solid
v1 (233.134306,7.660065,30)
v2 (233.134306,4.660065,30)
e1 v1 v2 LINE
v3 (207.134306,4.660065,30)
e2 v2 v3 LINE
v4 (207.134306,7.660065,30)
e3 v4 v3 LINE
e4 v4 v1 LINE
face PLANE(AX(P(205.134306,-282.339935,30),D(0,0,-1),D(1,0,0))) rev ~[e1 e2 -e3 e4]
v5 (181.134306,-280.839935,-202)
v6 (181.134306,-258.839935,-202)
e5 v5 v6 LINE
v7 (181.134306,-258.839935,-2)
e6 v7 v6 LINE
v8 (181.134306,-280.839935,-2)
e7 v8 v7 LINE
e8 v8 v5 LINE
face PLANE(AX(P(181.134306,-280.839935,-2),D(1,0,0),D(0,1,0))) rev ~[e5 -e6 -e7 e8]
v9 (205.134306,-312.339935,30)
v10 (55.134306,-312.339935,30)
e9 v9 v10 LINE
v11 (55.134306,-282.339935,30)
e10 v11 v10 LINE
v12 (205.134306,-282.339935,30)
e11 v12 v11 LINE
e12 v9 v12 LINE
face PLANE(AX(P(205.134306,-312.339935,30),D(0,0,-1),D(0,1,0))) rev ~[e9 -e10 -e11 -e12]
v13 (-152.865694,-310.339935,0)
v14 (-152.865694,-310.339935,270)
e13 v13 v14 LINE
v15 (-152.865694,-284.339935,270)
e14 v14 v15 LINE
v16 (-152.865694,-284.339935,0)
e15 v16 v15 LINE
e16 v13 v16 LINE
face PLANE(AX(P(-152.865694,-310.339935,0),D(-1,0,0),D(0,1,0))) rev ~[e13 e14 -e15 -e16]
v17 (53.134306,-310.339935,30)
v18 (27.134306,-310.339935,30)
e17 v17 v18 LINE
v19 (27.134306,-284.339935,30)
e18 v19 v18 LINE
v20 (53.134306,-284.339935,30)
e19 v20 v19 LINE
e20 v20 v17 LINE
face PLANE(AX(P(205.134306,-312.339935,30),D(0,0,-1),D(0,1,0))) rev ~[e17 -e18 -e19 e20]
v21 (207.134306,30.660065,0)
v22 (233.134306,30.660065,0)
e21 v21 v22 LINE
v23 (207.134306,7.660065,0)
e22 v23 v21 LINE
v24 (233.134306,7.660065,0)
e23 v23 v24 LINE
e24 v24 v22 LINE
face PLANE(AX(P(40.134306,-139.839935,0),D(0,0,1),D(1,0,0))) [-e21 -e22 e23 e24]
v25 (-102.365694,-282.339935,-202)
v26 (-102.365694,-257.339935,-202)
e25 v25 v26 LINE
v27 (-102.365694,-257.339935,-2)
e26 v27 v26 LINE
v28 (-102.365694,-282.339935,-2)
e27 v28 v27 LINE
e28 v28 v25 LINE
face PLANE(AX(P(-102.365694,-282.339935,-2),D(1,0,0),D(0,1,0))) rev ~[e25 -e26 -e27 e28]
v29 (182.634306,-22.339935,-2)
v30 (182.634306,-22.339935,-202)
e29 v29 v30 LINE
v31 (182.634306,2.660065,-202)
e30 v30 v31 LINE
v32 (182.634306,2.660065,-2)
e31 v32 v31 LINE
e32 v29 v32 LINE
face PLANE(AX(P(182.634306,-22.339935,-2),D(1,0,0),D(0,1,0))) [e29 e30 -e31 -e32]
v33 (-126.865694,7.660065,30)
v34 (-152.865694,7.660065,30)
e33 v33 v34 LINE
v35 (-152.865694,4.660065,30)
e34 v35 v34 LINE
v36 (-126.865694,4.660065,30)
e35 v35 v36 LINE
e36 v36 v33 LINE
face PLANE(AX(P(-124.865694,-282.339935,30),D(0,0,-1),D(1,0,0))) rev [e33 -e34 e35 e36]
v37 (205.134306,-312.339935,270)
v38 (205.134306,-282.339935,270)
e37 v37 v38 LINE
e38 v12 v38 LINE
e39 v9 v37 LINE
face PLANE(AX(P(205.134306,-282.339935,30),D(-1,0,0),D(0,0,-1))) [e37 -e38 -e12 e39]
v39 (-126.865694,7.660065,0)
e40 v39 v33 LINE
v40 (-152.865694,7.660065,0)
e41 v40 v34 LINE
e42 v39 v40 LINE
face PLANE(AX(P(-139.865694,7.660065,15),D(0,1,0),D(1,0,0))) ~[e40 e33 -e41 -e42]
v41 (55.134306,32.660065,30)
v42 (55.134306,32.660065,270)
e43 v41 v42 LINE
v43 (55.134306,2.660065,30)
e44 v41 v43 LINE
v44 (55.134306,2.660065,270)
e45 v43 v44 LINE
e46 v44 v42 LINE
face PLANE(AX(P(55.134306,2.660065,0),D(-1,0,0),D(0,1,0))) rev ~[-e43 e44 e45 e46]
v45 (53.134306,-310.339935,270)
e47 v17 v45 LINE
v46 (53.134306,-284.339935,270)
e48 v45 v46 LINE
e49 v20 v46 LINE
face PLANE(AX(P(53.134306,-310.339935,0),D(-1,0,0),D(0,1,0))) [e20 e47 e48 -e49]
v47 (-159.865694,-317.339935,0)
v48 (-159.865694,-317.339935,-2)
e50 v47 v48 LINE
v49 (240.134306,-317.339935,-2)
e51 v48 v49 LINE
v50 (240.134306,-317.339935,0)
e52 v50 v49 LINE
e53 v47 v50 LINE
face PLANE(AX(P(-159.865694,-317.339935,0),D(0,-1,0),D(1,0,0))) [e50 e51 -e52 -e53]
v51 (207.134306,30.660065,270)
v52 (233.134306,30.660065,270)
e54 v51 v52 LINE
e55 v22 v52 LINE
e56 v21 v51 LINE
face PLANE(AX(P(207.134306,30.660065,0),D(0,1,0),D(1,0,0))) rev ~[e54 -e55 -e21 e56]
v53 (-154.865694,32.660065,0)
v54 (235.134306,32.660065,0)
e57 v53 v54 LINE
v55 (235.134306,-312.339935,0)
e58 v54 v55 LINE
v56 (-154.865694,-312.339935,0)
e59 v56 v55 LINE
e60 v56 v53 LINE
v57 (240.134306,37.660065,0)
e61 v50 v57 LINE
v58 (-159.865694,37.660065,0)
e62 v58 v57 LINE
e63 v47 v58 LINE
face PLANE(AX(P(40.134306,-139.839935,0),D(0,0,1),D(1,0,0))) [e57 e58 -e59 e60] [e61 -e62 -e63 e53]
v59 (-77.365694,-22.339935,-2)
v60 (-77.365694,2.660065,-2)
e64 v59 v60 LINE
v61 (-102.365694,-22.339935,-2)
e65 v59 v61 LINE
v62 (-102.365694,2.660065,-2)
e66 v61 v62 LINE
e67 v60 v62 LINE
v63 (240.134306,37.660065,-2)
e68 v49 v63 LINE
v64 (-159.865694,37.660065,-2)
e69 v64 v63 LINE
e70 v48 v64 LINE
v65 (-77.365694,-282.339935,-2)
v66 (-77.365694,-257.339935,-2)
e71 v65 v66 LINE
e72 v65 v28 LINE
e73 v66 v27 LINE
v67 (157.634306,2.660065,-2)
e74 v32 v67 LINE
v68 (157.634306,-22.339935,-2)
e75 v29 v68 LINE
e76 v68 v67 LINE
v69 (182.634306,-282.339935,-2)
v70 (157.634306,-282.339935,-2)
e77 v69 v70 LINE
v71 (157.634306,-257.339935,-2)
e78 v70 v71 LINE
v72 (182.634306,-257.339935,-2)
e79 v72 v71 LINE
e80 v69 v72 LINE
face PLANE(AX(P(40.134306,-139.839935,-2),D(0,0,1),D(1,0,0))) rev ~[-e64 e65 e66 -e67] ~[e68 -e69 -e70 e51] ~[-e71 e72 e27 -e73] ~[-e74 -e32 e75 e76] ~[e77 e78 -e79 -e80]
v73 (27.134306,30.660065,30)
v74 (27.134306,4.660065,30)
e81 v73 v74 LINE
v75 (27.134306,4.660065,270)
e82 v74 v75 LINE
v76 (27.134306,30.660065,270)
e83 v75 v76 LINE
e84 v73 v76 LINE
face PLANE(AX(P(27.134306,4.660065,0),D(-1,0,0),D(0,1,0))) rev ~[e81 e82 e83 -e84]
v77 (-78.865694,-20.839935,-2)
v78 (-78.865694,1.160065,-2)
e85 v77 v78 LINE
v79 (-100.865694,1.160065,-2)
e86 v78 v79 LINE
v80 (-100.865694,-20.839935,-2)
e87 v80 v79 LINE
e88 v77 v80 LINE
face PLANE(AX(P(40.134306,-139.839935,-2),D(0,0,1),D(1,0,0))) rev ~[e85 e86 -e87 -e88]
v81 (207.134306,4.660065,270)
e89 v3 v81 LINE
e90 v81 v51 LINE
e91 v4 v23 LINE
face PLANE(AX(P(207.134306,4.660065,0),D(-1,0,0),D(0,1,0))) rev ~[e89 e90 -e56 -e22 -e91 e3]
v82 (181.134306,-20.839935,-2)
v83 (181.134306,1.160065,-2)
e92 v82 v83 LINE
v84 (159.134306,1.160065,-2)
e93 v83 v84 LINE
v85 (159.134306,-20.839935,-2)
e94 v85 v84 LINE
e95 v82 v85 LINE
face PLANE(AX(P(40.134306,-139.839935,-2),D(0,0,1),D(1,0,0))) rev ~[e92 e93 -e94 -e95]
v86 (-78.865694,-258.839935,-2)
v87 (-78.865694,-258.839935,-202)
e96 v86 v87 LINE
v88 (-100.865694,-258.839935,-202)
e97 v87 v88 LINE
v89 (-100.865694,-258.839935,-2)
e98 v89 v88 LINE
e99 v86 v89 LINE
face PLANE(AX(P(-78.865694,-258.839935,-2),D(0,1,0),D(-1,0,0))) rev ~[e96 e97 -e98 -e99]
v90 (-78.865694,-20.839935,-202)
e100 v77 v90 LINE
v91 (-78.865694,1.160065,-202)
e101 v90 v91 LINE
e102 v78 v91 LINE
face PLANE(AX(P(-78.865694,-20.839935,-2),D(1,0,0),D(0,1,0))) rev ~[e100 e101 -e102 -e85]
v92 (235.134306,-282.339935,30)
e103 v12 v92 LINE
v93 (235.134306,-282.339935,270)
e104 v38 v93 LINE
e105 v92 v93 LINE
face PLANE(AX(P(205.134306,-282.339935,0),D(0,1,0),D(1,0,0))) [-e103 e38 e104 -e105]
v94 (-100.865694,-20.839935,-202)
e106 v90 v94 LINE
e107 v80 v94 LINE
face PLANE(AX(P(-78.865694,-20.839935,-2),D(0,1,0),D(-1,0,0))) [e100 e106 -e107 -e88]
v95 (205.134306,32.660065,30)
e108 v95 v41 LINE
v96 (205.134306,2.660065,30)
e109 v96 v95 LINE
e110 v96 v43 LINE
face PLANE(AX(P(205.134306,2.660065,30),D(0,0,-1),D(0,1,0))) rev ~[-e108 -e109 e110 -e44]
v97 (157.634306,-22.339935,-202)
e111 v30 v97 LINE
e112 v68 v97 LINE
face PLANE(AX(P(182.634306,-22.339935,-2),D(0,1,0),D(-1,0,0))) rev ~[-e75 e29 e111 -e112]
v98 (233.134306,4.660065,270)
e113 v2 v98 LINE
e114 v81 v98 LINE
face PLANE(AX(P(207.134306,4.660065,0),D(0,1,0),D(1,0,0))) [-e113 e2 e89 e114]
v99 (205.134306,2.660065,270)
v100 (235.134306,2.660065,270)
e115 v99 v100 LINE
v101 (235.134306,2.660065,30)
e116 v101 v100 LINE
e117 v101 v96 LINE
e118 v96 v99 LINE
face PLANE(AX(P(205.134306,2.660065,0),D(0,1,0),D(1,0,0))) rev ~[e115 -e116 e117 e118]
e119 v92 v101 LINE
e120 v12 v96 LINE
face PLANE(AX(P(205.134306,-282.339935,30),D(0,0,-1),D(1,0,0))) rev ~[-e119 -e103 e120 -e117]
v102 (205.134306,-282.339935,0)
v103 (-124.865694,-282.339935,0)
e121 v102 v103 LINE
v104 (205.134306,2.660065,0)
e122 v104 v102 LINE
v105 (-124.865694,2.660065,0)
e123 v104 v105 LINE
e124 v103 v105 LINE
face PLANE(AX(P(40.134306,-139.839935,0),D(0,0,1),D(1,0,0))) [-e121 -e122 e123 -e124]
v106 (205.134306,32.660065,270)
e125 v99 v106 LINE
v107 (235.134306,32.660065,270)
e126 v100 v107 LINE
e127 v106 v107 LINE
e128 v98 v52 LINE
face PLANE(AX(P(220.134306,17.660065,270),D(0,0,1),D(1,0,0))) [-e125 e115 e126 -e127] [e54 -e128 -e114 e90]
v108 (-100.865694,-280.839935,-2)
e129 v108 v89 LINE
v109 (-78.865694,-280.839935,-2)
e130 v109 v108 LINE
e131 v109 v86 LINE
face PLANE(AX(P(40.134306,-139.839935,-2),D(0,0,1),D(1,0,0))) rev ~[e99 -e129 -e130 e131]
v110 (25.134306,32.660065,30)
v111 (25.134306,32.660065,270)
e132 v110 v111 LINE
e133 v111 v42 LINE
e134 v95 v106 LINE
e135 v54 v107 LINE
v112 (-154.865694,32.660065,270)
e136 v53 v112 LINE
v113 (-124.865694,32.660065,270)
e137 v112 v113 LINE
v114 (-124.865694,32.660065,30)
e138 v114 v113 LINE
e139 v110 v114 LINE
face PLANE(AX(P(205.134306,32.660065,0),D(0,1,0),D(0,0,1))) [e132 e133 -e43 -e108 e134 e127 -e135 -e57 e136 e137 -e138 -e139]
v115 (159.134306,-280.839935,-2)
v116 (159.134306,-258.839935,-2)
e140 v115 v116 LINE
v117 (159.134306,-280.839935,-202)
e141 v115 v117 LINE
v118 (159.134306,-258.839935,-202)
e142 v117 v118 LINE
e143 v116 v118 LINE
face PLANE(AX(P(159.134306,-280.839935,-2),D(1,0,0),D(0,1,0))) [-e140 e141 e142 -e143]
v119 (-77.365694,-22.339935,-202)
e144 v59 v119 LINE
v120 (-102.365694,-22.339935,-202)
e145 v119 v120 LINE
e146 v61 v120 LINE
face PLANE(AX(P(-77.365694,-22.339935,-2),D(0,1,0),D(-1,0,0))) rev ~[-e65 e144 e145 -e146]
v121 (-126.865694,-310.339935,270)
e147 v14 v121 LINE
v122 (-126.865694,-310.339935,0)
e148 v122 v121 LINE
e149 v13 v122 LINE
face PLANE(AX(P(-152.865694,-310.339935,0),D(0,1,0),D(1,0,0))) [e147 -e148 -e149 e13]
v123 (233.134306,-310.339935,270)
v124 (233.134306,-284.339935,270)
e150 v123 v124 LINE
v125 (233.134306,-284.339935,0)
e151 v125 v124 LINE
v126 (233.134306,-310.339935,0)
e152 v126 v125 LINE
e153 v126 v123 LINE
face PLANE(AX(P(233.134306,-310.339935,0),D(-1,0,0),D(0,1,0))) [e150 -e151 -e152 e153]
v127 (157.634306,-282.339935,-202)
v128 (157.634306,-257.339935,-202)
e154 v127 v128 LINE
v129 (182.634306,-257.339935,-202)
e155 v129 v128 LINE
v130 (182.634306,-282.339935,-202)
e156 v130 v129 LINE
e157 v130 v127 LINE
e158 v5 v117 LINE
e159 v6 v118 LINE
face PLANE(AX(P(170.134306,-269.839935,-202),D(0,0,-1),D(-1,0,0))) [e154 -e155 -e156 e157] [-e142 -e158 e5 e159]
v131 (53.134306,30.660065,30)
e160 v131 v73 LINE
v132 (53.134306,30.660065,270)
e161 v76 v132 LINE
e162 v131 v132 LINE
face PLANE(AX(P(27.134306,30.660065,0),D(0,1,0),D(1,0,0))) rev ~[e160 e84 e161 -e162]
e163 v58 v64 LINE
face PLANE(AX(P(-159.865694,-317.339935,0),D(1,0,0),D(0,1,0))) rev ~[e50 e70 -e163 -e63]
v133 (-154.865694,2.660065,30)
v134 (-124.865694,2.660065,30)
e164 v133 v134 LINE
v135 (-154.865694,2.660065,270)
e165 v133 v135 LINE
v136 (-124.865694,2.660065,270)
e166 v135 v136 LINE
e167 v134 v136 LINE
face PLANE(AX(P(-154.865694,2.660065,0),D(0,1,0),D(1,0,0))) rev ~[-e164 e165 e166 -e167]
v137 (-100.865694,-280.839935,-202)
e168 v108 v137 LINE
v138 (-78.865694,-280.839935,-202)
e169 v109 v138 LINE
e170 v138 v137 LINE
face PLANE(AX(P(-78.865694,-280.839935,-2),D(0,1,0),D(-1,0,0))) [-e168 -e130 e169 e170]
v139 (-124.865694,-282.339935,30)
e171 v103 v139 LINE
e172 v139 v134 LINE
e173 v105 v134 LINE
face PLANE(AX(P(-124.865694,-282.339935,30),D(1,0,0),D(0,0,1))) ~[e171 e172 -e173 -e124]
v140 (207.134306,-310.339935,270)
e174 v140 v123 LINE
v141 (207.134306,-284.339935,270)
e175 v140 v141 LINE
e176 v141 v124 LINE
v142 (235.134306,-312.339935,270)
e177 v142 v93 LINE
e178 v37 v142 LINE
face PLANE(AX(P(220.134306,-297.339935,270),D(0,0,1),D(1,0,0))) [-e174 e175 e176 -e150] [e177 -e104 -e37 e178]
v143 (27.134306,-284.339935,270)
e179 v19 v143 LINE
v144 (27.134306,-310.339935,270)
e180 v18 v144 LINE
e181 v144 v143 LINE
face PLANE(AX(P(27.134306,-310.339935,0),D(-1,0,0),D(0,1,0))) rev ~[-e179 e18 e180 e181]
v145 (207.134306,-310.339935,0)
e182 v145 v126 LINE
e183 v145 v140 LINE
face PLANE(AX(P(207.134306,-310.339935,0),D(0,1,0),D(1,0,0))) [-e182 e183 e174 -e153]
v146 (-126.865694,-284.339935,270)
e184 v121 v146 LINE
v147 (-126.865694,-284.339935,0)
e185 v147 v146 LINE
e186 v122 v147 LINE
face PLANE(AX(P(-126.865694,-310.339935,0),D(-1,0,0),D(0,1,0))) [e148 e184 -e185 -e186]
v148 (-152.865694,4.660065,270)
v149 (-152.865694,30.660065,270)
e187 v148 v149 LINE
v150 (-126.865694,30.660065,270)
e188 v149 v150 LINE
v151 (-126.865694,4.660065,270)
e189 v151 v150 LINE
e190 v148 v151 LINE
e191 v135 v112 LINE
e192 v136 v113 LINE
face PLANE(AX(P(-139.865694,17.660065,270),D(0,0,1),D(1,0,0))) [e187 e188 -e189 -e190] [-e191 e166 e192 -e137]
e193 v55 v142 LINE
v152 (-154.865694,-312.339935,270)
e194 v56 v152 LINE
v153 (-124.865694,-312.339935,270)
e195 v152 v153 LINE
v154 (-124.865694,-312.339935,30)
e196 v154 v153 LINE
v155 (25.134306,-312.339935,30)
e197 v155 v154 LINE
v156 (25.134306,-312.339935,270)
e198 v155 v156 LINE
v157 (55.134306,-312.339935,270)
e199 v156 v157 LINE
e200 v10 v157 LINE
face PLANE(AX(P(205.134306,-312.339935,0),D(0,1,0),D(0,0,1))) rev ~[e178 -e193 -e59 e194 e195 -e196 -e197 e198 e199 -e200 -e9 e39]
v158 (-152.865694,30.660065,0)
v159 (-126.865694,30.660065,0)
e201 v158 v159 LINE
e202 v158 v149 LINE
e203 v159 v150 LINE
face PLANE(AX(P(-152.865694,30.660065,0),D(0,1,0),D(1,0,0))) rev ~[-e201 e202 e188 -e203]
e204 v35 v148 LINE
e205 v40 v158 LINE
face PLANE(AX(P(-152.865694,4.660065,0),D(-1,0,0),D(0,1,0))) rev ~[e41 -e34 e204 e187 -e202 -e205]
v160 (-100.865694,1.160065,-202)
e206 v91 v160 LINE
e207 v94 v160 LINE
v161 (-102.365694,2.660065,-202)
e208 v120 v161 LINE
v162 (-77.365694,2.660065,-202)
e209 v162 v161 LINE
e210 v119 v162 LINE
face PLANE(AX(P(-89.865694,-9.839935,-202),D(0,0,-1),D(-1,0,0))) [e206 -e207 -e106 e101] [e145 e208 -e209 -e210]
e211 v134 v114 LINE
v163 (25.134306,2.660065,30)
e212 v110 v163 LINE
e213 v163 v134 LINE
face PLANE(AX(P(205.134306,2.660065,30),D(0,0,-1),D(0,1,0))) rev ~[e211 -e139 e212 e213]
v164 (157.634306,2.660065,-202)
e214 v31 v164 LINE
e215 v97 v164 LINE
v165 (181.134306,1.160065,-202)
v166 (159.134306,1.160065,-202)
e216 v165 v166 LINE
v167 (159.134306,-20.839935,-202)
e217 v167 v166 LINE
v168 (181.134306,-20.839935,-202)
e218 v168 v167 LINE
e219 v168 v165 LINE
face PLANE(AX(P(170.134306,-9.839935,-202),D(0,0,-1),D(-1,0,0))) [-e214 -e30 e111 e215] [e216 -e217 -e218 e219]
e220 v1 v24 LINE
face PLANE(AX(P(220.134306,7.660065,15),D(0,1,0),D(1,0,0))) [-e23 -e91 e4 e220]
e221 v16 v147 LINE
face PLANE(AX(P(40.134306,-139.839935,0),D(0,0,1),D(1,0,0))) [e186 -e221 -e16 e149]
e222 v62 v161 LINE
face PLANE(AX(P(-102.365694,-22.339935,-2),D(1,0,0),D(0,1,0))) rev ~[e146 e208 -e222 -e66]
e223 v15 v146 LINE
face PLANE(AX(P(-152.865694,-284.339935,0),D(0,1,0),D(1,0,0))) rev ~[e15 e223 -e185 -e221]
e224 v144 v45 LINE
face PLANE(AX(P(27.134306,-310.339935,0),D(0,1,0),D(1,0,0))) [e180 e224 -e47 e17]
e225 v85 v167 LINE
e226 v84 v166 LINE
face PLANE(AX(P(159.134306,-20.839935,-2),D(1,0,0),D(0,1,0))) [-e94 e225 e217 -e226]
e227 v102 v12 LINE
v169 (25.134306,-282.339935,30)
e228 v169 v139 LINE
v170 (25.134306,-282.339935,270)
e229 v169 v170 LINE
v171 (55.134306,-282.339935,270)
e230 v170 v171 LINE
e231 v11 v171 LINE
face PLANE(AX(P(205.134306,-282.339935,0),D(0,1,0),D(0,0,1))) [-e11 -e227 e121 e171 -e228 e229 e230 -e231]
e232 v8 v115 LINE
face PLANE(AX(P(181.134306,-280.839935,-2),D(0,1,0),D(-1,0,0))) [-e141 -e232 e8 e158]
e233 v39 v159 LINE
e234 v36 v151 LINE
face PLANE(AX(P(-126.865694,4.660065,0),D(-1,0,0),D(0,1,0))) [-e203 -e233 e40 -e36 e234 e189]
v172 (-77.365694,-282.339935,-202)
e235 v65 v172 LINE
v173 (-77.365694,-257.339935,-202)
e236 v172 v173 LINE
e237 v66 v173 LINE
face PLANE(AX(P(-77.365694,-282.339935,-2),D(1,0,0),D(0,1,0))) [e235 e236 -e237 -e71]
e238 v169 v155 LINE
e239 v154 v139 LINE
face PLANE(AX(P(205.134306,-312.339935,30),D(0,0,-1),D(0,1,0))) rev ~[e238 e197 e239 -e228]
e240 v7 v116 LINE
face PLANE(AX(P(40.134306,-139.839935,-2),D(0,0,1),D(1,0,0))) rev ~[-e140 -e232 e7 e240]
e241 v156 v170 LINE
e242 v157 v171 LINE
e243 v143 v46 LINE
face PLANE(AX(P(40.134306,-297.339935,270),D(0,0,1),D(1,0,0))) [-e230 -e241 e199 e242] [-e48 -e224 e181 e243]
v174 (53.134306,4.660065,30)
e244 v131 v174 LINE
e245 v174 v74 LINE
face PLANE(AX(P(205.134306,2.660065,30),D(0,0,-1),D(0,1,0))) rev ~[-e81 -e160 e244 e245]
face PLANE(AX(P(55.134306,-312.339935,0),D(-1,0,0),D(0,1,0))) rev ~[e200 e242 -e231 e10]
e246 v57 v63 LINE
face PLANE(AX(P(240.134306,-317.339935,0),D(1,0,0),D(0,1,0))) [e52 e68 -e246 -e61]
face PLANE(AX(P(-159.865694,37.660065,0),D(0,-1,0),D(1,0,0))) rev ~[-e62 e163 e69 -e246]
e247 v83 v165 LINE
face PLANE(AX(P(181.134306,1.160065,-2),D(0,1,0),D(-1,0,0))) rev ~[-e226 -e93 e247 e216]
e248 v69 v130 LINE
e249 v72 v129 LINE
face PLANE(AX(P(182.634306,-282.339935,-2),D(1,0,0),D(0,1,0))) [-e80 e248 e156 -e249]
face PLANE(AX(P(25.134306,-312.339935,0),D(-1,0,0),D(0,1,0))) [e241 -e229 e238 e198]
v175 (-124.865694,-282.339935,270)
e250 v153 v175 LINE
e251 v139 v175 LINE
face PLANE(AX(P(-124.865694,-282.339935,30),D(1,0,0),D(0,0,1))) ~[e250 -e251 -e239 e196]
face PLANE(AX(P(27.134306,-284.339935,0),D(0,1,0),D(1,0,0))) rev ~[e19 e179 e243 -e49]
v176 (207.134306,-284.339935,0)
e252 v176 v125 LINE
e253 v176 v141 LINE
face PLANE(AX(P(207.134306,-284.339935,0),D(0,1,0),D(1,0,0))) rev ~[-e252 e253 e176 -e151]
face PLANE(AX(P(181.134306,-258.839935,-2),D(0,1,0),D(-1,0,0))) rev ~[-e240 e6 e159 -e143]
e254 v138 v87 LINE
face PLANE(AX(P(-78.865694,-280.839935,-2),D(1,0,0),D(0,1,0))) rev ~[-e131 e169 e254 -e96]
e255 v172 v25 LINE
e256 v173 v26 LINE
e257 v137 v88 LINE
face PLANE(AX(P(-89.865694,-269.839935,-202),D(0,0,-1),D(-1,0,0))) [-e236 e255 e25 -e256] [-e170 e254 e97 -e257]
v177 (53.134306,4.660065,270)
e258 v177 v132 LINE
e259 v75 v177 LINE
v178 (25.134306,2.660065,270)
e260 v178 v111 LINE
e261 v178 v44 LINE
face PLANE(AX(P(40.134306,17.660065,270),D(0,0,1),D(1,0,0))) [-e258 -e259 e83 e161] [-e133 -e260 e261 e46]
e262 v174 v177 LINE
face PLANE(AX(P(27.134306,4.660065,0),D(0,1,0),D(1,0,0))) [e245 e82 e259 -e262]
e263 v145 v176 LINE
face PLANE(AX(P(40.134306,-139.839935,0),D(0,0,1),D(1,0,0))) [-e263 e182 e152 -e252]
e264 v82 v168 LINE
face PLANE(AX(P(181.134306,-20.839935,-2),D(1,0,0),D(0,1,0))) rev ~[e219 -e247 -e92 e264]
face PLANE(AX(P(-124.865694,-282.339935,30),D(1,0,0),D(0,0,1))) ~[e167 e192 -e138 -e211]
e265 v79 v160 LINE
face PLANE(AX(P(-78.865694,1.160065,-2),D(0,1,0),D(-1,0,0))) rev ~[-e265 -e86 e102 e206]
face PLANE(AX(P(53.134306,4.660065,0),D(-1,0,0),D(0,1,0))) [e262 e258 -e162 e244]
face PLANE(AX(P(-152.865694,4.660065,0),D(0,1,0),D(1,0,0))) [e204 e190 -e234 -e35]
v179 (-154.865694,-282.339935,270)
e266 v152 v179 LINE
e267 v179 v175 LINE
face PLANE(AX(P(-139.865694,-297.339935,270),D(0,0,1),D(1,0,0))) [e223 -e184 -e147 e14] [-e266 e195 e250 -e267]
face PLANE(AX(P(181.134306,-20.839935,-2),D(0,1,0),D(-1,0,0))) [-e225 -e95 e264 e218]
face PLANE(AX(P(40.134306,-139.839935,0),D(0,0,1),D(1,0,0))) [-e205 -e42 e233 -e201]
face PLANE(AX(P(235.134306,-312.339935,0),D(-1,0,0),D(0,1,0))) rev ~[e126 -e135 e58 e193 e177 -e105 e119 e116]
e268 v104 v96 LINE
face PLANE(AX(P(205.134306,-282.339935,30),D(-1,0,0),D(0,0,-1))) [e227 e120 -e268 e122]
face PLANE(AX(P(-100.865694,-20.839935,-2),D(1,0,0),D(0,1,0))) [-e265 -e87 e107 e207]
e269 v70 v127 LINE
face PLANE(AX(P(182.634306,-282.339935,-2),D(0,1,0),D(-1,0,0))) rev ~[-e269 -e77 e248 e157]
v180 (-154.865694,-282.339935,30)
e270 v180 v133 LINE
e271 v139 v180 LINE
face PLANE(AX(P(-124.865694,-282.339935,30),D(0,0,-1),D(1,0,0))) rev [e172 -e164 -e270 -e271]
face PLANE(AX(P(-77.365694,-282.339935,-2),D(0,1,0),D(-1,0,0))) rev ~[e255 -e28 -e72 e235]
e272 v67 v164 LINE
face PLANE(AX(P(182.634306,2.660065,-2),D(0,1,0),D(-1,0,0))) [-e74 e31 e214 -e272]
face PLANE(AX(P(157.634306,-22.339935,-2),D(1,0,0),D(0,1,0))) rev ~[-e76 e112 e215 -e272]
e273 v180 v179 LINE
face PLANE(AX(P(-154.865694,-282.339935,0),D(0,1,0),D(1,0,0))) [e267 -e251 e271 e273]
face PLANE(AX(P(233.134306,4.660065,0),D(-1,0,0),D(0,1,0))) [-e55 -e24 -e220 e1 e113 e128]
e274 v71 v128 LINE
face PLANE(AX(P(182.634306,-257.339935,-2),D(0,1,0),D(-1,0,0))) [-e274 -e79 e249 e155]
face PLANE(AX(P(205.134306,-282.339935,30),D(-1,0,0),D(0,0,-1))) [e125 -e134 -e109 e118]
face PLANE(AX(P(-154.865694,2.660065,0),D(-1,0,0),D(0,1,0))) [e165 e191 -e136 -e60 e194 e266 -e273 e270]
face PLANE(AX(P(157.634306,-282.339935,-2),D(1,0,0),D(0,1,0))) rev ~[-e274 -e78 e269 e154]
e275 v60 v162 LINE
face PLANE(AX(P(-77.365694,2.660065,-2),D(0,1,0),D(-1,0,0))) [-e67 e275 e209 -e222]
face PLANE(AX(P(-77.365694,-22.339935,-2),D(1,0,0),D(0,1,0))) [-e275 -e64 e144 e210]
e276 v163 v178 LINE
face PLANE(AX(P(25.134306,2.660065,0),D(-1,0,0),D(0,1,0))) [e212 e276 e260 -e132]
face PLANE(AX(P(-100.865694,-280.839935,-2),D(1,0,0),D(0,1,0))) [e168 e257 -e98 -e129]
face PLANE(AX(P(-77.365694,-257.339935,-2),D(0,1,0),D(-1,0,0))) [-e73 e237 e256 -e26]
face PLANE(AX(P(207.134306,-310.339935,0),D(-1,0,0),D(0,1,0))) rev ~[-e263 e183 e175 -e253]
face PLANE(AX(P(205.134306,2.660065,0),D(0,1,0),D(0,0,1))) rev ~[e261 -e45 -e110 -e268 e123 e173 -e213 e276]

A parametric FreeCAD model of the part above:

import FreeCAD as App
import Part
import Sketcher
from FreeCAD import Vector
Q = App.Units.Quantity

doc = App.newDocument("Part")
body = doc.addObject("PartDesign::Body", "Body")

# Sketch on XY plane
sketch1 = doc.addObject("Sketcher::SketchObject", "Sketch")
body.addObject(sketch1)
sketch1.AttachmentSupport = (doc.XY_Plane, [""])
sketch1.MapMode = "FlatFace"
sketch1.addGeometry([
    Part.LineSegment(Vector(-155, 33, 0), Vector(-155, 3, 0)),  # 0
    Part.LineSegment(Vector(-155, 3, 0), Vector(-125, 3, 0)),  # 1
    Part.LineSegment(Vector(-125, 3, 0), Vector(-125, 33, 0)),  # 2
    Part.LineSegment(Vector(-125, 33, 0), Vector(-155, 33, 0)),  # 3
    Part.LineSegment(Vector(-127, 5, 0), Vector(-153, 5, 0)),  # 4
    Part.LineSegment(Vector(-153, 5, 0), Vector(-153, 31, 0)),  # 5
    Part.LineSegment(Vector(-153, 31, 0), Vector(-127, 31, 0)),  # 6
    Part.LineSegment(Vector(-127, 31, 0), Vector(-127, 5, 0)),  # 7
], False)
sketch1.addConstraint([
    Sketcher.Constraint("Coincident", 0, 2, 1, 1),
    Sketcher.Constraint("Coincident", 1, 2, 2, 1),
    Sketcher.Constraint("Coincident", 2, 2, 3, 1),
    Sketcher.Constraint("Coincident", 3, 2, 0, 1),
    Sketcher.Constraint("Coincident", 4, 2, 5, 1),
    Sketcher.Constraint("Coincident", 5, 2, 6, 1),
    Sketcher.Constraint("Coincident", 6, 2, 7, 1),
    Sketcher.Constraint("Coincident", 7, 2, 4, 1),
    Sketcher.Constraint("Vertical", 0),
    Sketcher.Constraint("Horizontal", 1),
    Sketcher.Constraint("Vertical", 2),
    Sketcher.Constraint("Horizontal", 3),
    Sketcher.Constraint("Horizontal", 4),
    Sketcher.Constraint("Vertical", 5),
    Sketcher.Constraint("Horizontal", 6),
    Sketcher.Constraint("Vertical", 7),
    Sketcher.Constraint("Equal", 3, 0),
    Sketcher.Constraint("Equal", 6, 5),
    Sketcher.Constraint("DistanceX", 1, 1, 1, 2, Q("30 mm")),
    Sketcher.Constraint("DistanceX", 4, 2, 4, 1, Q("26 mm")),
    Sketcher.Constraint("DistanceX", 0, 2, 4, 2, Q("2 mm")),
    Sketcher.Constraint("DistanceY", 0, 2, 4, 2, Q("2 mm")),
    Sketcher.Constraint("DistanceX", 0, 2, -1, 1, Q("154.865694 mm")),
    Sketcher.Constraint("DistanceY", -1, 1, 0, 2, Q("2.660065 mm")),
])
pad1 = doc.addObject("PartDesign::Pad", "Pad")
body.addObject(pad1)
pad1.Profile = sketch1
pad1.Length = 270
body2 = doc.addObject("PartDesign::Body", "Body001")

# Sketch on XY plane
sketch2 = doc.addObject("Sketcher::SketchObject", "Sketch001")
body2.addObject(sketch2)
sketch2.AttachmentSupport = (doc.getObject("XY_Plane001"), [""])
sketch2.MapMode = "FlatFace"
sketch2.addGeometry([
    Part.LineSegment(Vector(25, 33, 0), Vector(25, 3, 0)),  # 0
    Part.LineSegment(Vector(25, 3, 0), Vector(55, 3, 0)),  # 1
    Part.LineSegment(Vector(55, 3, 0), Vector(55, 33, 0)),  # 2
    Part.LineSegment(Vector(55, 33, 0), Vector(25, 33, 0)),  # 3
    Part.LineSegment(Vector(53, 5, 0), Vector(27, 5, 0)),  # 4
    Part.LineSegment(Vector(27, 5, 0), Vector(27, 31, 0)),  # 5
    Part.LineSegment(Vector(27, 31, 0), Vector(53, 31, 0)),  # 6
    Part.LineSegment(Vector(53, 31, 0), Vector(53, 5, 0)),  # 7
], False)
sketch2.addConstraint([
    Sketcher.Constraint("Coincident", 0, 2, 1, 1),
    Sketcher.Constraint("Coincident", 1, 2, 2, 1),
    Sketcher.Constraint("Coincident", 2, 2, 3, 1),
    Sketcher.Constraint("Coincident", 3, 2, 0, 1),
    Sketcher.Constraint("Coincident", 4, 2, 5, 1),
    Sketcher.Constraint("Coincident", 5, 2, 6, 1),
    Sketcher.Constraint("Coincident", 6, 2, 7, 1),
    Sketcher.Constraint("Coincident", 7, 2, 4, 1),
    Sketcher.Constraint("Vertical", 0),
    Sketcher.Constraint("Horizontal", 1),
    Sketcher.Constraint("Vertical", 2),
    Sketcher.Constraint("Horizontal", 3),
    Sketcher.Constraint("Horizontal", 4),
    Sketcher.Constraint("Vertical", 5),
    Sketcher.Constraint("Horizontal", 6),
    Sketcher.Constraint("Vertical", 7),
    Sketcher.Constraint("Equal", 3, 0),
    Sketcher.Constraint("Equal", 6, 5),
    Sketcher.Constraint("DistanceX", 1, 1, 1, 2, Q("30 mm")),
    Sketcher.Constraint("DistanceX", 4, 2, 4, 1, Q("26 mm")),
    Sketcher.Constraint("DistanceX", 0, 2, 4, 2, Q("2 mm")),
    Sketcher.Constraint("DistanceY", 0, 2, 4, 2, Q("2 mm")),
    Sketcher.Constraint("DistanceX", -1, 1, 0, 2, Q("25.134306 mm")),
    Sketcher.Constraint("DistanceY", -1, 1, 0, 2, Q("2.660065 mm")),
])
pad2 = doc.addObject("PartDesign::Pad", "Pad001")
body2.addObject(pad2)
pad2.Profile = sketch2
pad2.Length = 270
body3 = doc.addObject("PartDesign::Body", "Body002")

# Sketch on XY plane
sketch3 = doc.addObject("Sketcher::SketchObject", "Sketch002")
body3.addObject(sketch3)
sketch3.AttachmentSupport = (doc.getObject("XY_Plane002"), [""])
sketch3.MapMode = "FlatFace"
sketch3.addGeometry([
    Part.LineSegment(Vector(205, 33, 0), Vector(205, 3, 0)),  # 0
    Part.LineSegment(Vector(205, 3, 0), Vector(235, 3, 0)),  # 1
    Part.LineSegment(Vector(235, 3, 0), Vector(235, 33, 0)),  # 2
    Part.LineSegment(Vector(235, 33, 0), Vector(205, 33, 0)),  # 3
    Part.LineSegment(Vector(233, 5, 0), Vector(207, 5, 0)),  # 4
    Part.LineSegment(Vector(207, 5, 0), Vector(207, 31, 0)),  # 5
    Part.LineSegment(Vector(207, 31, 0), Vector(233, 31, 0)),  # 6
    Part.LineSegment(Vector(233, 31, 0), Vector(233, 5, 0)),  # 7
], False)
sketch3.addConstraint([
    Sketcher.Constraint("Coincident", 0, 2, 1, 1),
    Sketcher.Constraint("Coincident", 1, 2, 2, 1),
    Sketcher.Constraint("Coincident", 2, 2, 3, 1),
    Sketcher.Constraint("Coincident", 3, 2, 0, 1),
    Sketcher.Constraint("Coincident", 4, 2, 5, 1),
    Sketcher.Constraint("Coincident", 5, 2, 6, 1),
    Sketcher.Constraint("Coincident", 6, 2, 7, 1),
    Sketcher.Constraint("Coincident", 7, 2, 4, 1),
    Sketcher.Constraint("Vertical", 0),
    Sketcher.Constraint("Horizontal", 1),
    Sketcher.Constraint("Vertical", 2),
    Sketcher.Constraint("Horizontal", 3),
    Sketcher.Constraint("Horizontal", 4),
    Sketcher.Constraint("Vertical", 5),
    Sketcher.Constraint("Horizontal", 6),
    Sketcher.Constraint("Vertical", 7),
    Sketcher.Constraint("Equal", 3, 0),
    Sketcher.Constraint("Equal", 6, 5),
    Sketcher.Constraint("DistanceX", 1, 1, 1, 2, Q("30 mm")),
    Sketcher.Constraint("DistanceX", 4, 2, 4, 1, Q("26 mm")),
    Sketcher.Constraint("DistanceX", 0, 2, 4, 2, Q("2 mm")),
    Sketcher.Constraint("DistanceY", 0, 2, 4, 2, Q("2 mm")),
    Sketcher.Constraint("DistanceX", -1, 1, 0, 2, Q("205.134306 mm")),
    Sketcher.Constraint("DistanceY", -1, 1, 0, 2, Q("2.660065 mm")),
])
pad3 = doc.addObject("PartDesign::Pad", "Pad002")
body3.addObject(pad3)
pad3.Profile = sketch3
pad3.Length = 270
body4 = doc.addObject("PartDesign::Body", "Body003")

# Sketch on XY plane
sketch4 = doc.addObject("Sketcher::SketchObject", "Sketch003")
body4.addObject(sketch4)
sketch4.AttachmentSupport = (doc.getObject("XY_Plane003"), [""])
sketch4.MapMode = "FlatFace"
sketch4.addGeometry([
    Part.LineSegment(Vector(-155, -282, 0), Vector(-155, -312, 0)),  # 0
    Part.LineSegment(Vector(-155, -312, 0), Vector(-125, -312, 0)),  # 1
    Part.LineSegment(Vector(-125, -312, 0), Vector(-125, -282, 0)),  # 2
    Part.LineSegment(Vector(-125, -282, 0), Vector(-155, -282, 0)),  # 3
    Part.LineSegment(Vector(-127, -310, 0), Vector(-153, -310, 0)),  # 4
    Part.LineSegment(Vector(-153, -310, 0), Vector(-153, -284, 0)),  # 5
    Part.LineSegment(Vector(-153, -284, 0), Vector(-127, -284, 0)),  # 6
    Part.LineSegment(Vector(-127, -284, 0), Vector(-127, -310, 0)),  # 7
], False)
sketch4.addConstraint([
    Sketcher.Constraint("Coincident", 0, 2, 1, 1),
    Sketcher.Constraint("Coincident", 1, 2, 2, 1),
    Sketcher.Constraint("Coincident", 2, 2, 3, 1),
    Sketcher.Constraint("Coincident", 3, 2, 0, 1),
    Sketcher.Constraint("Coincident", 4, 2, 5, 1),
    Sketcher.Constraint("Coincident", 5, 2, 6, 1),
    Sketcher.Constraint("Coincident", 6, 2, 7, 1),
    Sketcher.Constraint("Coincident", 7, 2, 4, 1),
    Sketcher.Constraint("Vertical", 0),
    Sketcher.Constraint("Horizontal", 1),
    Sketcher.Constraint("Vertical", 2),
    Sketcher.Constraint("Horizontal", 3),
    Sketcher.Constraint("Horizontal", 4),
    Sketcher.Constraint("Vertical", 5),
    Sketcher.Constraint("Horizontal", 6),
    Sketcher.Constraint("Vertical", 7),
    Sketcher.Constraint("Equal", 3, 0),
    Sketcher.Constraint("Equal", 6, 5),
    Sketcher.Constraint("DistanceX", 1, 1, 1, 2, Q("30 mm")),
    Sketcher.Constraint("DistanceX", 4, 2, 4, 1, Q("26 mm")),
    Sketcher.Constraint("DistanceX", 0, 2, 4, 2, Q("2 mm")),
    Sketcher.Constraint("DistanceY", 0, 2, 4, 2, Q("2 mm")),
    Sketcher.Constraint("DistanceX", 0, 2, -1, 1, Q("154.865694 mm")),
    Sketcher.Constraint("DistanceY", 0, 2, -1, 1, Q("312.339935 mm")),
])
pad4 = doc.addObject("PartDesign::Pad", "Pad003")
body4.addObject(pad4)
pad4.Profile = sketch4
pad4.Length = 270
body5 = doc.addObject("PartDesign::Body", "Body004")

# Sketch on XY plane
sketch5 = doc.addObject("Sketcher::SketchObject", "Sketch004")
body5.addObject(sketch5)
sketch5.AttachmentSupport = (doc.getObject("XY_Plane004"), [""])
sketch5.MapMode = "FlatFace"
sketch5.addGeometry([
    Part.LineSegment(Vector(25, -282, 0), Vector(25, -312, 0)),  # 0
    Part.LineSegment(Vector(25, -312, 0), Vector(55, -312, 0)),  # 1
    Part.LineSegment(Vector(55, -312, 0), Vector(55, -282, 0)),  # 2
    Part.LineSegment(Vector(55, -282, 0), Vector(25, -282, 0)),  # 3
    Part.LineSegment(Vector(53, -310, 0), Vector(27, -310, 0)),  # 4
    Part.LineSegment(Vector(27, -310, 0), Vector(27, -284, 0)),  # 5
    Part.LineSegment(Vector(27, -284, 0), Vector(53, -284, 0)),  # 6
    Part.LineSegment(Vector(53, -284, 0), Vector(53, -310, 0)),  # 7
], False)
sketch5.addConstraint([
    Sketcher.Constraint("Coincident", 0, 2, 1, 1),
    Sketcher.Constraint("Coincident", 1, 2, 2, 1),
    Sketcher.Constraint("Coincident", 2, 2, 3, 1),
    Sketcher.Constraint("Coincident", 3, 2, 0, 1),
    Sketcher.Constraint("Coincident", 4, 2, 5, 1),
    Sketcher.Constraint("Coincident", 5, 2, 6, 1),
    Sketcher.Constraint("Coincident", 6, 2, 7, 1),
    Sketcher.Constraint("Coincident", 7, 2, 4, 1),
    Sketcher.Constraint("Vertical", 0),
    Sketcher.Constraint("Horizontal", 1),
    Sketcher.Constraint("Vertical", 2),
    Sketcher.Constraint("Horizontal", 3),
    Sketcher.Constraint("Horizontal", 4),
    Sketcher.Constraint("Vertical", 5),
    Sketcher.Constraint("Horizontal", 6),
    Sketcher.Constraint("Vertical", 7),
    Sketcher.Constraint("Equal", 3, 0),
    Sketcher.Constraint("Equal", 6, 5),
    Sketcher.Constraint("DistanceX", 1, 1, 1, 2, Q("30 mm")),
    Sketcher.Constraint("DistanceX", 4, 2, 4, 1, Q("26 mm")),
    Sketcher.Constraint("DistanceX", 0, 2, 4, 2, Q("2 mm")),
    Sketcher.Constraint("DistanceY", 0, 2, 4, 2, Q("2 mm")),
    Sketcher.Constraint("DistanceX", -1, 1, 0, 2, Q("25.134306 mm")),
    Sketcher.Constraint("DistanceY", 0, 2, -1, 1, Q("312.339935 mm")),
])
pad5 = doc.addObject("PartDesign::Pad", "Pad004")
body5.addObject(pad5)
pad5.Profile = sketch5
pad5.Length = 270
body6 = doc.addObject("PartDesign::Body", "Body005")

# Sketch on XY plane
sketch6 = doc.addObject("Sketcher::SketchObject", "Sketch005")
body6.addObject(sketch6)
sketch6.AttachmentSupport = (doc.getObject("XY_Plane005"), [""])
sketch6.MapMode = "FlatFace"
sketch6.addGeometry([
    Part.LineSegment(Vector(205, -282, 0), Vector(205, -312, 0)),  # 0
    Part.LineSegment(Vector(205, -312, 0), Vector(235, -312, 0)),  # 1
    Part.LineSegment(Vector(235, -312, 0), Vector(235, -282, 0)),  # 2
    Part.LineSegment(Vector(235, -282, 0), Vector(205, -282, 0)),  # 3
    Part.LineSegment(Vector(233, -310, 0), Vector(207, -310, 0)),  # 4
    Part.LineSegment(Vector(207, -310, 0), Vector(207, -284, 0)),  # 5
    Part.LineSegment(Vector(207, -284, 0), Vector(233, -284, 0)),  # 6
    Part.LineSegment(Vector(233, -284, 0), Vector(233, -310, 0)),  # 7
], False)
sketch6.addConstraint([
    Sketcher.Constraint("Coincident", 0, 2, 1, 1),
    Sketcher.Constraint("Coincident", 1, 2, 2, 1),
    Sketcher.Constraint("Coincident", 2, 2, 3, 1),
    Sketcher.Constraint("Coincident", 3, 2, 0, 1),
    Sketcher.Constraint("Coincident", 4, 2, 5, 1),
    Sketcher.Constraint("Coincident", 5, 2, 6, 1),
    Sketcher.Constraint("Coincident", 6, 2, 7, 1),
    Sketcher.Constraint("Coincident", 7, 2, 4, 1),
    Sketcher.Constraint("Vertical", 0),
    Sketcher.Constraint("Horizontal", 1),
    Sketcher.Constraint("Vertical", 2),
    Sketcher.Constraint("Horizontal", 3),
    Sketcher.Constraint("Horizontal", 4),
    Sketcher.Constraint("Vertical", 5),
    Sketcher.Constraint("Horizontal", 6),
    Sketcher.Constraint("Vertical", 7),
    Sketcher.Constraint("Equal", 3, 0),
    Sketcher.Constraint("Equal", 6, 5),
    Sketcher.Constraint("DistanceX", 1, 1, 1, 2, Q("30 mm")),
    Sketcher.Constraint("DistanceX", 4, 2, 4, 1, Q("26 mm")),
    Sketcher.Constraint("DistanceX", 0, 2, 4, 2, Q("2 mm")),
    Sketcher.Constraint("DistanceY", 0, 2, 4, 2, Q("2 mm")),
    Sketcher.Constraint("DistanceX", -1, 1, 0, 2, Q("205.134306 mm")),
    Sketcher.Constraint("DistanceY", 0, 2, -1, 1, Q("312.339935 mm")),
])
pad6 = doc.addObject("PartDesign::Pad", "Pad005")
body6.addObject(pad6)
pad6.Profile = sketch6
pad6.Length = 270
body.AllowCompound = True
doc.recompute()

boolean = doc.addObject("PartDesign::Boolean", "Boolean")
body.addObject(boolean)
boolean.Type = "Fuse"
boolean.addObjects([body2])
doc.recompute()

boolean2 = doc.addObject("PartDesign::Boolean", "Boolean001")
body.addObject(boolean2)
boolean2.Type = "Fuse"
boolean2.addObjects([body3])
doc.recompute()

boolean3 = doc.addObject("PartDesign::Boolean", "Boolean002")
body.addObject(boolean3)
boolean3.Type = "Fuse"
boolean3.addObjects([body4])
doc.recompute()

boolean4 = doc.addObject("PartDesign::Boolean", "Boolean003")
body.addObject(boolean4)
boolean4.Type = "Fuse"
boolean4.addObjects([body5])
doc.recompute()

boolean5 = doc.addObject("PartDesign::Boolean", "Boolean004")
body.addObject(boolean5)
boolean5.Type = "Fuse"
boolean5.addObjects([body6])

# Sketch on XY plane
sketch7 = doc.addObject("Sketcher::SketchObject", "Sketch006")
body.addObject(sketch7)
sketch7.AttachmentSupport = (doc.XY_Plane, [""])
sketch7.MapMode = "FlatFace"
sketch7.addGeometry([
    Part.LineSegment(Vector(-160, 38, 0), Vector(-160, -317, 0)),
    Part.LineSegment(Vector(-160, -317, 0), Vector(240, -317, 0)),
    Part.LineSegment(Vector(240, -317, 0), Vector(240, 38, 0)),
    Part.LineSegment(Vector(240, 38, 0), Vector(-160, 38, 0)),
], False)
sketch7.addConstraint([
    Sketcher.Constraint("Coincident", 0, 2, 1, 1),
    Sketcher.Constraint("Coincident", 1, 2, 2, 1),
    Sketcher.Constraint("Coincident", 2, 2, 3, 1),
    Sketcher.Constraint("Coincident", 3, 2, 0, 1),
    Sketcher.Constraint("Vertical", 0),
    Sketcher.Constraint("Horizontal", 1),
    Sketcher.Constraint("Vertical", 2),
    Sketcher.Constraint("Horizontal", 3),
    Sketcher.Constraint("DistanceX", 1, 1, 1, 2, Q("400 mm")),
    Sketcher.Constraint("DistanceY", 0, 2, 0, 1, Q("355 mm")),
    Sketcher.Constraint("DistanceX", 0, 2, -1, 1, Q("159.865694 mm")),
    Sketcher.Constraint("DistanceY", 0, 2, -1, 1, Q("317.339935 mm")),
])
pad7 = doc.addObject("PartDesign::Pad", "Pad006")
body.addObject(pad7)
pad7.Profile = sketch7
pad7.Length = 2
pad7.Reversed = True

# Sketch on XY plane
sketch8 = doc.addObject("Sketcher::SketchObject", "Sketch007")
body.addObject(sketch8)
sketch8.AttachmentSupport = (doc.XY_Plane, [""])
sketch8.MapMode = "FlatFace"
sketch8.AttachmentOffset = App.Placement(Vector(0, 0, -2), App.Rotation())
sketch8.addGeometry([
    Part.LineSegment(Vector(183, 3, 0), Vector(183, -22, 0)),  # 0
    Part.LineSegment(Vector(183, -22, 0), Vector(158, -22, 0)),  # 1
    Part.LineSegment(Vector(158, -22, 0), Vector(158, 3, 0)),  # 2
    Part.LineSegment(Vector(158, 3, 0), Vector(183, 3, 0)),  # 3
    Part.LineSegment(Vector(159, -21, 0), Vector(181, -21, 0)),  # 4
    Part.LineSegment(Vector(181, -21, 0), Vector(181, 1, 0)),  # 5
    Part.LineSegment(Vector(181, 1, 0), Vector(159, 1, 0)),  # 6
    Part.LineSegment(Vector(159, 1, 0), Vector(159, -21, 0)),  # 7
    Part.LineSegment(Vector(183, -257, 0), Vector(183, -282, 0)),  # 8
    Part.LineSegment(Vector(183, -282, 0), Vector(158, -282, 0)),  # 9
    Part.LineSegment(Vector(158, -282, 0), Vector(158, -257, 0)),  # 10
    Part.LineSegment(Vector(158, -257, 0), Vector(183, -257, 0)),  # 11
    Part.LineSegment(Vector(159, -281, 0), Vector(181, -281, 0)),  # 12
    Part.LineSegment(Vector(181, -281, 0), Vector(181, -259, 0)),  # 13
    Part.LineSegment(Vector(181, -259, 0), Vector(159, -259, 0)),  # 14
    Part.LineSegment(Vector(159, -259, 0), Vector(159, -281, 0)),  # 15
    Part.LineSegment(Vector(-77, -257, 0), Vector(-77, -282, 0)),  # 16
    Part.LineSegment(Vector(-77, -282, 0), Vector(-102, -282, 0)),  # 17
    Part.LineSegment(Vector(-102, -282, 0), Vector(-102, -257, 0)),  # 18
    Part.LineSegment(Vector(-102, -257, 0), Vector(-77, -257, 0)),  # 19
    Part.LineSegment(Vector(-101, -281, 0), Vector(-79, -281, 0)),  # 20
    Part.LineSegment(Vector(-79, -281, 0), Vector(-79, -259, 0)),  # 21
    Part.LineSegment(Vector(-79, -259, 0), Vector(-101, -259, 0)),  # 22
    Part.LineSegment(Vector(-101, -259, 0), Vector(-101, -281, 0)),  # 23
    Part.LineSegment(Vector(-77, 3, 0), Vector(-77, -22, 0)),  # 24
    Part.LineSegment(Vector(-77, -22, 0), Vector(-102, -22, 0)),  # 25
    Part.LineSegment(Vector(-102, -22, 0), Vector(-102, 3, 0)),  # 26
    Part.LineSegment(Vector(-102, 3, 0), Vector(-77, 3, 0)),  # 27
    Part.LineSegment(Vector(-101, -21, 0), Vector(-79, -21, 0)),  # 28
    Part.LineSegment(Vector(-79, -21, 0), Vector(-79, 1, 0)),  # 29
    Part.LineSegment(Vector(-79, 1, 0), Vector(-101, 1, 0)),  # 30
    Part.LineSegment(Vector(-101, 1, 0), Vector(-101, -21, 0)),  # 31
], False)
sketch8.addConstraint([
    Sketcher.Constraint("Coincident", 0, 2, 1, 1),
    Sketcher.Constraint("Coincident", 1, 2, 2, 1),
    Sketcher.Constraint("Coincident", 2, 2, 3, 1),
    Sketcher.Constraint("Coincident", 3, 2, 0, 1),
    Sketcher.Constraint("Coincident", 4, 2, 5, 1),
    Sketcher.Constraint("Coincident", 5, 2, 6, 1),
    Sketcher.Constraint("Coincident", 6, 2, 7, 1),
    Sketcher.Constraint("Coincident", 7, 2, 4, 1),
    Sketcher.Constraint("Coincident", 8, 2, 9, 1),
    Sketcher.Constraint("Coincident", 9, 2, 10, 1),
    Sketcher.Constraint("Coincident", 10, 2, 11, 1),
    Sketcher.Constraint("Coincident", 11, 2, 8, 1),
    Sketcher.Constraint("Coincident", 12, 2, 13, 1),
    Sketcher.Constraint("Coincident", 13, 2, 14, 1),
    Sketcher.Constraint("Coincident", 14, 2, 15, 1),
    Sketcher.Constraint("Coincident", 15, 2, 12, 1),
    Sketcher.Constraint("Coincident", 16, 2, 17, 1),
    Sketcher.Constraint("Coincident", 17, 2, 18, 1),
    Sketcher.Constraint("Coincident", 18, 2, 19, 1),
    Sketcher.Constraint("Coincident", 19, 2, 16, 1),
    Sketcher.Constraint("Coincident", 20, 2, 21, 1),
    Sketcher.Constraint("Coincident", 21, 2, 22, 1),
    Sketcher.Constraint("Coincident", 22, 2, 23, 1),
    Sketcher.Constraint("Coincident", 23, 2, 20, 1),
    Sketcher.Constraint("Coincident", 24, 2, 25, 1),
    Sketcher.Constraint("Coincident", 25, 2, 26, 1),
    Sketcher.Constraint("Coincident", 26, 2, 27, 1),
    Sketcher.Constraint("Coincident", 27, 2, 24, 1),
    Sketcher.Constraint("Coincident", 28, 2, 29, 1),
    Sketcher.Constraint("Coincident", 29, 2, 30, 1),
    Sketcher.Constraint("Coincident", 30, 2, 31, 1),
    Sketcher.Constraint("Coincident", 31, 2, 28, 1),
    Sketcher.Constraint("Vertical", 0),
    Sketcher.Constraint("Horizontal", 1),
    Sketcher.Constraint("Vertical", 2),
    Sketcher.Constraint("Horizontal", 3),
    Sketcher.Constraint("Horizontal", 4),
    Sketcher.Constraint("Vertical", 5),
    Sketcher.Constraint("Horizontal", 6),
    Sketcher.Constraint("Vertical", 7),
    Sketcher.Constraint("Vertical", 8),
    Sketcher.Constraint("Horizontal", 9),
    Sketcher.Constraint("Vertical", 10),
    Sketcher.Constraint("Horizontal", 11),
    Sketcher.Constraint("Horizontal", 12),
    Sketcher.Constraint("Vertical", 13),
    Sketcher.Constraint("Horizontal", 14),
    Sketcher.Constraint("Vertical", 15),
    Sketcher.Constraint("Vertical", 16),
    Sketcher.Constraint("Horizontal", 17),
    Sketcher.Constraint("Vertical", 18),
    Sketcher.Constraint("Horizontal", 19),
    Sketcher.Constraint("Horizontal", 20),
    Sketcher.Constraint("Vertical", 21),
    Sketcher.Constraint("Horizontal", 22),
    Sketcher.Constraint("Vertical", 23),
    Sketcher.Constraint("Vertical", 24),
    Sketcher.Constraint("Horizontal", 25),
    Sketcher.Constraint("Vertical", 26),
    Sketcher.Constraint("Horizontal", 27),
    Sketcher.Constraint("Horizontal", 28),
    Sketcher.Constraint("Vertical", 29),
    Sketcher.Constraint("Horizontal", 30),
    Sketcher.Constraint("Vertical", 31),
    Sketcher.Constraint("Horizontal", 9, 2, 16, 2),
    Sketcher.Constraint("Horizontal", 11, 2, 18, 2),
    Sketcher.Constraint("Horizontal", 15, 2, 20, 2),
    Sketcher.Constraint("Horizontal", 14, 2, 21, 2),
    Sketcher.Constraint("Horizontal", 1, 2, 24, 2),
    Sketcher.Constraint("Horizontal", 3, 2, 26, 2),
    Sketcher.Constraint("Horizontal", 7, 2, 28, 2),
    Sketcher.Constraint("Horizontal", 6, 2, 29, 2),
    Sketcher.Constraint("Vertical", 3, 2, 8, 2),
    Sketcher.Constraint("Vertical", 2, 2, 9, 2),
    Sketcher.Constraint("Vertical", 5, 2, 12, 2),
    Sketcher.Constraint("Vertical", 7, 2, 14, 2),
    Sketcher.Constraint("Vertical", 19, 2, 24, 2),
    Sketcher.Constraint("Vertical", 18, 2, 25, 2),
    Sketcher.Constraint("Vertical", 21, 2, 28, 2),
    Sketcher.Constraint("Vertical", 23, 2, 30, 2),
    Sketcher.Constraint("Equal", 11, 17),
    Sketcher.Constraint("Equal", 14, 20),
    Sketcher.Constraint("Equal", 27, 0),
    Sketcher.Constraint("Equal", 30, 5),
    Sketcher.Constraint("Equal", 2, 8),
    Sketcher.Constraint("Equal", 7, 13),
    Sketcher.Constraint("DistanceX", 1, 2, 1, 1, Q("25 mm")),
    Sketcher.Constraint("DistanceX", 4, 1, 4, 2, Q("22 mm")),
    Sketcher.Constraint("DistanceY", 8, 2, 0, 2, Q("260 mm")),
    Sketcher.Constraint("DistanceX", 16, 2, 9, 2, Q("235 mm")),
    Sketcher.Constraint("DistanceX", 4, 2, 0, 2, Q("1.5 mm")),
    Sketcher.Constraint("DistanceY", 0, 2, 4, 2, Q("1.5 mm")),
    Sketcher.Constraint("DistanceY", 8, 2, 12, 2, Q("1.5 mm")),
    Sketcher.Constraint("DistanceX", 20, 2, 16, 2, Q("1.5 mm")),
    Sketcher.Constraint("DistanceX", -1, 1, 0, 2, Q("182.634306 mm")),
    Sketcher.Constraint("DistanceY", 0, 2, -1, 1, Q("22.339935 mm")),
])
pad8 = doc.addObject("PartDesign::Pad", "Pad007")
body.addObject(pad8)
pad8.Profile = sketch8
pad8.Length = 200
pad8.Reversed = True

# Sketch on XZ plane
sketch9 = doc.addObject("Sketcher::SketchObject", "Sketch008")
body.addObject(sketch9)
sketch9.AttachmentSupport = (doc.XZ_Plane, [""])
sketch9.MapMode = "FlatFace"
sketch9.AttachmentOffset = App.Placement(Vector(0, 0, 282.339935), App.Rotation())
sketch9.addGeometry([
    Part.LineSegment(Vector(205, 0, 0), Vector(205, 30, 0)),
    Part.LineSegment(Vector(205, 30, 0), Vector(235, 30, 0)),
    Part.LineSegment(Vector(235, 30, 0), Vector(235, 0, 0)),
    Part.LineSegment(Vector(235, 0, 0), Vector(205, 0, 0)),
], False)
sketch9.addConstraint([
    Sketcher.Constraint("Coincident", 0, 2, 1, 1),
    Sketcher.Constraint("Coincident", 1, 2, 2, 1),
    Sketcher.Constraint("Coincident", 2, 2, 3, 1),
    Sketcher.Constraint("Coincident", 3, 2, 0, 1),
    Sketcher.Constraint("Vertical", 0),
    Sketcher.Constraint("Horizontal", 1),
    Sketcher.Constraint("Vertical", 2),
    Sketcher.Constraint("Horizontal", 3),
    Sketcher.Constraint("PointOnObject", 2, 2, -1),
    Sketcher.Constraint("Equal", 3, 0),
    Sketcher.Constraint("DistanceX", 1, 1, 1, 2, Q("30 mm")),
    Sketcher.Constraint("DistanceX", -1, 1, 0, 2, Q("205.134306 mm")),
])
pad9 = doc.addObject("PartDesign::Pad", "Pad008")
body.addObject(pad9)
pad9.Profile = sketch9
pad9.Length = 290
pad9.Reversed = True
doc.recompute()

datumplane = doc.addObject("PartDesign::Plane", "DatumPlane")
body.addObject(datumplane)
datumplane.AttachmentSupport = (doc.YZ_Plane, [""])
datumplane.MapMode = "FlatFace"
datumplane.AttachmentOffset = App.Placement(Vector(0, 0, 40.134306), App.Rotation())
mirrored = doc.addObject("PartDesign::Mirrored", "Mirrored")
body.addObject(mirrored)
mirrored.Originals = [pad9]
mirrored.MirrorPlane = (datumplane, [""])
body.Tip = mirrored

# Sketch on YZ plane
sketch10 = doc.addObject("Sketcher::SketchObject", "Sketch009")
body.addObject(sketch10)
sketch10.AttachmentSupport = (doc.YZ_Plane, [""])
sketch10.MapMode = "FlatFace"
sketch10.AttachmentOffset = App.Placement(Vector(0, 0, 205.134306), App.Rotation())
sketch10.addGeometry([
    Part.LineSegment(Vector(-282, 0, 0), Vector(-312, 0, 0)),  # 0
    Part.LineSegment(Vector(-312, 0, 0), Vector(-312, 30, 0)),  # 1
    Part.LineSegment(Vector(-312, 30, 0), Vector(-282, 30, 0)),  # 2
    Part.LineSegment(Vector(-282, 30, 0), Vector(-282, 0, 0)),  # 3
    Part.LineSegment(Vector(33, 0, 0), Vector(3, 0, 0)),  # 4
    Part.LineSegment(Vector(3, 0, 0), Vector(3, 30, 0)),  # 5
    Part.LineSegment(Vector(3, 30, 0), Vector(33, 30, 0)),  # 6
    Part.LineSegment(Vector(33, 30, 0), Vector(33, 0, 0)),  # 7
], False)
sketch10.addConstraint([
    Sketcher.Constraint("Coincident", 0, 2, 1, 1),
    Sketcher.Constraint("Coincident", 1, 2, 2, 1),
    Sketcher.Constraint("Coincident", 2, 2, 3, 1),
    Sketcher.Constraint("Coincident", 3, 2, 0, 1),
    Sketcher.Constraint("Coincident", 4, 2, 5, 1),
    Sketcher.Constraint("Coincident", 5, 2, 6, 1),
    Sketcher.Constraint("Coincident", 6, 2, 7, 1),
    Sketcher.Constraint("Coincident", 7, 2, 4, 1),
    Sketcher.Constraint("Horizontal", 0),
    Sketcher.Constraint("Vertical", 1),
    Sketcher.Constraint("Horizontal", 2),
    Sketcher.Constraint("Vertical", 3),
    Sketcher.Constraint("Horizontal", 4),
    Sketcher.Constraint("Vertical", 5),
    Sketcher.Constraint("Horizontal", 6),
    Sketcher.Constraint("Vertical", 7),
    Sketcher.Constraint("PointOnObject", 0, 2, -1),
    Sketcher.Constraint("PointOnObject", 4, 2, -1),
    Sketcher.Constraint("Horizontal", 2, 2, 5, 2),
    Sketcher.Constraint("Equal", 2, 4),
    Sketcher.Constraint("Equal", 6, 1),
    Sketcher.Constraint("DistanceX", 0, 2, 0, 1, Q("30 mm")),
    Sketcher.Constraint("DistanceX", 3, 2, 4, 2, Q("285 mm")),
    Sketcher.Constraint("DistanceX", 0, 2, -1, 1, Q("312.339935 mm")),
])
pad10 = doc.addObject("PartDesign::Pad", "Pad009")
body.addObject(pad10)
pad10.Profile = sketch10
pad10.Length = 330
pad10.Reversed = True

doc.recompute()
